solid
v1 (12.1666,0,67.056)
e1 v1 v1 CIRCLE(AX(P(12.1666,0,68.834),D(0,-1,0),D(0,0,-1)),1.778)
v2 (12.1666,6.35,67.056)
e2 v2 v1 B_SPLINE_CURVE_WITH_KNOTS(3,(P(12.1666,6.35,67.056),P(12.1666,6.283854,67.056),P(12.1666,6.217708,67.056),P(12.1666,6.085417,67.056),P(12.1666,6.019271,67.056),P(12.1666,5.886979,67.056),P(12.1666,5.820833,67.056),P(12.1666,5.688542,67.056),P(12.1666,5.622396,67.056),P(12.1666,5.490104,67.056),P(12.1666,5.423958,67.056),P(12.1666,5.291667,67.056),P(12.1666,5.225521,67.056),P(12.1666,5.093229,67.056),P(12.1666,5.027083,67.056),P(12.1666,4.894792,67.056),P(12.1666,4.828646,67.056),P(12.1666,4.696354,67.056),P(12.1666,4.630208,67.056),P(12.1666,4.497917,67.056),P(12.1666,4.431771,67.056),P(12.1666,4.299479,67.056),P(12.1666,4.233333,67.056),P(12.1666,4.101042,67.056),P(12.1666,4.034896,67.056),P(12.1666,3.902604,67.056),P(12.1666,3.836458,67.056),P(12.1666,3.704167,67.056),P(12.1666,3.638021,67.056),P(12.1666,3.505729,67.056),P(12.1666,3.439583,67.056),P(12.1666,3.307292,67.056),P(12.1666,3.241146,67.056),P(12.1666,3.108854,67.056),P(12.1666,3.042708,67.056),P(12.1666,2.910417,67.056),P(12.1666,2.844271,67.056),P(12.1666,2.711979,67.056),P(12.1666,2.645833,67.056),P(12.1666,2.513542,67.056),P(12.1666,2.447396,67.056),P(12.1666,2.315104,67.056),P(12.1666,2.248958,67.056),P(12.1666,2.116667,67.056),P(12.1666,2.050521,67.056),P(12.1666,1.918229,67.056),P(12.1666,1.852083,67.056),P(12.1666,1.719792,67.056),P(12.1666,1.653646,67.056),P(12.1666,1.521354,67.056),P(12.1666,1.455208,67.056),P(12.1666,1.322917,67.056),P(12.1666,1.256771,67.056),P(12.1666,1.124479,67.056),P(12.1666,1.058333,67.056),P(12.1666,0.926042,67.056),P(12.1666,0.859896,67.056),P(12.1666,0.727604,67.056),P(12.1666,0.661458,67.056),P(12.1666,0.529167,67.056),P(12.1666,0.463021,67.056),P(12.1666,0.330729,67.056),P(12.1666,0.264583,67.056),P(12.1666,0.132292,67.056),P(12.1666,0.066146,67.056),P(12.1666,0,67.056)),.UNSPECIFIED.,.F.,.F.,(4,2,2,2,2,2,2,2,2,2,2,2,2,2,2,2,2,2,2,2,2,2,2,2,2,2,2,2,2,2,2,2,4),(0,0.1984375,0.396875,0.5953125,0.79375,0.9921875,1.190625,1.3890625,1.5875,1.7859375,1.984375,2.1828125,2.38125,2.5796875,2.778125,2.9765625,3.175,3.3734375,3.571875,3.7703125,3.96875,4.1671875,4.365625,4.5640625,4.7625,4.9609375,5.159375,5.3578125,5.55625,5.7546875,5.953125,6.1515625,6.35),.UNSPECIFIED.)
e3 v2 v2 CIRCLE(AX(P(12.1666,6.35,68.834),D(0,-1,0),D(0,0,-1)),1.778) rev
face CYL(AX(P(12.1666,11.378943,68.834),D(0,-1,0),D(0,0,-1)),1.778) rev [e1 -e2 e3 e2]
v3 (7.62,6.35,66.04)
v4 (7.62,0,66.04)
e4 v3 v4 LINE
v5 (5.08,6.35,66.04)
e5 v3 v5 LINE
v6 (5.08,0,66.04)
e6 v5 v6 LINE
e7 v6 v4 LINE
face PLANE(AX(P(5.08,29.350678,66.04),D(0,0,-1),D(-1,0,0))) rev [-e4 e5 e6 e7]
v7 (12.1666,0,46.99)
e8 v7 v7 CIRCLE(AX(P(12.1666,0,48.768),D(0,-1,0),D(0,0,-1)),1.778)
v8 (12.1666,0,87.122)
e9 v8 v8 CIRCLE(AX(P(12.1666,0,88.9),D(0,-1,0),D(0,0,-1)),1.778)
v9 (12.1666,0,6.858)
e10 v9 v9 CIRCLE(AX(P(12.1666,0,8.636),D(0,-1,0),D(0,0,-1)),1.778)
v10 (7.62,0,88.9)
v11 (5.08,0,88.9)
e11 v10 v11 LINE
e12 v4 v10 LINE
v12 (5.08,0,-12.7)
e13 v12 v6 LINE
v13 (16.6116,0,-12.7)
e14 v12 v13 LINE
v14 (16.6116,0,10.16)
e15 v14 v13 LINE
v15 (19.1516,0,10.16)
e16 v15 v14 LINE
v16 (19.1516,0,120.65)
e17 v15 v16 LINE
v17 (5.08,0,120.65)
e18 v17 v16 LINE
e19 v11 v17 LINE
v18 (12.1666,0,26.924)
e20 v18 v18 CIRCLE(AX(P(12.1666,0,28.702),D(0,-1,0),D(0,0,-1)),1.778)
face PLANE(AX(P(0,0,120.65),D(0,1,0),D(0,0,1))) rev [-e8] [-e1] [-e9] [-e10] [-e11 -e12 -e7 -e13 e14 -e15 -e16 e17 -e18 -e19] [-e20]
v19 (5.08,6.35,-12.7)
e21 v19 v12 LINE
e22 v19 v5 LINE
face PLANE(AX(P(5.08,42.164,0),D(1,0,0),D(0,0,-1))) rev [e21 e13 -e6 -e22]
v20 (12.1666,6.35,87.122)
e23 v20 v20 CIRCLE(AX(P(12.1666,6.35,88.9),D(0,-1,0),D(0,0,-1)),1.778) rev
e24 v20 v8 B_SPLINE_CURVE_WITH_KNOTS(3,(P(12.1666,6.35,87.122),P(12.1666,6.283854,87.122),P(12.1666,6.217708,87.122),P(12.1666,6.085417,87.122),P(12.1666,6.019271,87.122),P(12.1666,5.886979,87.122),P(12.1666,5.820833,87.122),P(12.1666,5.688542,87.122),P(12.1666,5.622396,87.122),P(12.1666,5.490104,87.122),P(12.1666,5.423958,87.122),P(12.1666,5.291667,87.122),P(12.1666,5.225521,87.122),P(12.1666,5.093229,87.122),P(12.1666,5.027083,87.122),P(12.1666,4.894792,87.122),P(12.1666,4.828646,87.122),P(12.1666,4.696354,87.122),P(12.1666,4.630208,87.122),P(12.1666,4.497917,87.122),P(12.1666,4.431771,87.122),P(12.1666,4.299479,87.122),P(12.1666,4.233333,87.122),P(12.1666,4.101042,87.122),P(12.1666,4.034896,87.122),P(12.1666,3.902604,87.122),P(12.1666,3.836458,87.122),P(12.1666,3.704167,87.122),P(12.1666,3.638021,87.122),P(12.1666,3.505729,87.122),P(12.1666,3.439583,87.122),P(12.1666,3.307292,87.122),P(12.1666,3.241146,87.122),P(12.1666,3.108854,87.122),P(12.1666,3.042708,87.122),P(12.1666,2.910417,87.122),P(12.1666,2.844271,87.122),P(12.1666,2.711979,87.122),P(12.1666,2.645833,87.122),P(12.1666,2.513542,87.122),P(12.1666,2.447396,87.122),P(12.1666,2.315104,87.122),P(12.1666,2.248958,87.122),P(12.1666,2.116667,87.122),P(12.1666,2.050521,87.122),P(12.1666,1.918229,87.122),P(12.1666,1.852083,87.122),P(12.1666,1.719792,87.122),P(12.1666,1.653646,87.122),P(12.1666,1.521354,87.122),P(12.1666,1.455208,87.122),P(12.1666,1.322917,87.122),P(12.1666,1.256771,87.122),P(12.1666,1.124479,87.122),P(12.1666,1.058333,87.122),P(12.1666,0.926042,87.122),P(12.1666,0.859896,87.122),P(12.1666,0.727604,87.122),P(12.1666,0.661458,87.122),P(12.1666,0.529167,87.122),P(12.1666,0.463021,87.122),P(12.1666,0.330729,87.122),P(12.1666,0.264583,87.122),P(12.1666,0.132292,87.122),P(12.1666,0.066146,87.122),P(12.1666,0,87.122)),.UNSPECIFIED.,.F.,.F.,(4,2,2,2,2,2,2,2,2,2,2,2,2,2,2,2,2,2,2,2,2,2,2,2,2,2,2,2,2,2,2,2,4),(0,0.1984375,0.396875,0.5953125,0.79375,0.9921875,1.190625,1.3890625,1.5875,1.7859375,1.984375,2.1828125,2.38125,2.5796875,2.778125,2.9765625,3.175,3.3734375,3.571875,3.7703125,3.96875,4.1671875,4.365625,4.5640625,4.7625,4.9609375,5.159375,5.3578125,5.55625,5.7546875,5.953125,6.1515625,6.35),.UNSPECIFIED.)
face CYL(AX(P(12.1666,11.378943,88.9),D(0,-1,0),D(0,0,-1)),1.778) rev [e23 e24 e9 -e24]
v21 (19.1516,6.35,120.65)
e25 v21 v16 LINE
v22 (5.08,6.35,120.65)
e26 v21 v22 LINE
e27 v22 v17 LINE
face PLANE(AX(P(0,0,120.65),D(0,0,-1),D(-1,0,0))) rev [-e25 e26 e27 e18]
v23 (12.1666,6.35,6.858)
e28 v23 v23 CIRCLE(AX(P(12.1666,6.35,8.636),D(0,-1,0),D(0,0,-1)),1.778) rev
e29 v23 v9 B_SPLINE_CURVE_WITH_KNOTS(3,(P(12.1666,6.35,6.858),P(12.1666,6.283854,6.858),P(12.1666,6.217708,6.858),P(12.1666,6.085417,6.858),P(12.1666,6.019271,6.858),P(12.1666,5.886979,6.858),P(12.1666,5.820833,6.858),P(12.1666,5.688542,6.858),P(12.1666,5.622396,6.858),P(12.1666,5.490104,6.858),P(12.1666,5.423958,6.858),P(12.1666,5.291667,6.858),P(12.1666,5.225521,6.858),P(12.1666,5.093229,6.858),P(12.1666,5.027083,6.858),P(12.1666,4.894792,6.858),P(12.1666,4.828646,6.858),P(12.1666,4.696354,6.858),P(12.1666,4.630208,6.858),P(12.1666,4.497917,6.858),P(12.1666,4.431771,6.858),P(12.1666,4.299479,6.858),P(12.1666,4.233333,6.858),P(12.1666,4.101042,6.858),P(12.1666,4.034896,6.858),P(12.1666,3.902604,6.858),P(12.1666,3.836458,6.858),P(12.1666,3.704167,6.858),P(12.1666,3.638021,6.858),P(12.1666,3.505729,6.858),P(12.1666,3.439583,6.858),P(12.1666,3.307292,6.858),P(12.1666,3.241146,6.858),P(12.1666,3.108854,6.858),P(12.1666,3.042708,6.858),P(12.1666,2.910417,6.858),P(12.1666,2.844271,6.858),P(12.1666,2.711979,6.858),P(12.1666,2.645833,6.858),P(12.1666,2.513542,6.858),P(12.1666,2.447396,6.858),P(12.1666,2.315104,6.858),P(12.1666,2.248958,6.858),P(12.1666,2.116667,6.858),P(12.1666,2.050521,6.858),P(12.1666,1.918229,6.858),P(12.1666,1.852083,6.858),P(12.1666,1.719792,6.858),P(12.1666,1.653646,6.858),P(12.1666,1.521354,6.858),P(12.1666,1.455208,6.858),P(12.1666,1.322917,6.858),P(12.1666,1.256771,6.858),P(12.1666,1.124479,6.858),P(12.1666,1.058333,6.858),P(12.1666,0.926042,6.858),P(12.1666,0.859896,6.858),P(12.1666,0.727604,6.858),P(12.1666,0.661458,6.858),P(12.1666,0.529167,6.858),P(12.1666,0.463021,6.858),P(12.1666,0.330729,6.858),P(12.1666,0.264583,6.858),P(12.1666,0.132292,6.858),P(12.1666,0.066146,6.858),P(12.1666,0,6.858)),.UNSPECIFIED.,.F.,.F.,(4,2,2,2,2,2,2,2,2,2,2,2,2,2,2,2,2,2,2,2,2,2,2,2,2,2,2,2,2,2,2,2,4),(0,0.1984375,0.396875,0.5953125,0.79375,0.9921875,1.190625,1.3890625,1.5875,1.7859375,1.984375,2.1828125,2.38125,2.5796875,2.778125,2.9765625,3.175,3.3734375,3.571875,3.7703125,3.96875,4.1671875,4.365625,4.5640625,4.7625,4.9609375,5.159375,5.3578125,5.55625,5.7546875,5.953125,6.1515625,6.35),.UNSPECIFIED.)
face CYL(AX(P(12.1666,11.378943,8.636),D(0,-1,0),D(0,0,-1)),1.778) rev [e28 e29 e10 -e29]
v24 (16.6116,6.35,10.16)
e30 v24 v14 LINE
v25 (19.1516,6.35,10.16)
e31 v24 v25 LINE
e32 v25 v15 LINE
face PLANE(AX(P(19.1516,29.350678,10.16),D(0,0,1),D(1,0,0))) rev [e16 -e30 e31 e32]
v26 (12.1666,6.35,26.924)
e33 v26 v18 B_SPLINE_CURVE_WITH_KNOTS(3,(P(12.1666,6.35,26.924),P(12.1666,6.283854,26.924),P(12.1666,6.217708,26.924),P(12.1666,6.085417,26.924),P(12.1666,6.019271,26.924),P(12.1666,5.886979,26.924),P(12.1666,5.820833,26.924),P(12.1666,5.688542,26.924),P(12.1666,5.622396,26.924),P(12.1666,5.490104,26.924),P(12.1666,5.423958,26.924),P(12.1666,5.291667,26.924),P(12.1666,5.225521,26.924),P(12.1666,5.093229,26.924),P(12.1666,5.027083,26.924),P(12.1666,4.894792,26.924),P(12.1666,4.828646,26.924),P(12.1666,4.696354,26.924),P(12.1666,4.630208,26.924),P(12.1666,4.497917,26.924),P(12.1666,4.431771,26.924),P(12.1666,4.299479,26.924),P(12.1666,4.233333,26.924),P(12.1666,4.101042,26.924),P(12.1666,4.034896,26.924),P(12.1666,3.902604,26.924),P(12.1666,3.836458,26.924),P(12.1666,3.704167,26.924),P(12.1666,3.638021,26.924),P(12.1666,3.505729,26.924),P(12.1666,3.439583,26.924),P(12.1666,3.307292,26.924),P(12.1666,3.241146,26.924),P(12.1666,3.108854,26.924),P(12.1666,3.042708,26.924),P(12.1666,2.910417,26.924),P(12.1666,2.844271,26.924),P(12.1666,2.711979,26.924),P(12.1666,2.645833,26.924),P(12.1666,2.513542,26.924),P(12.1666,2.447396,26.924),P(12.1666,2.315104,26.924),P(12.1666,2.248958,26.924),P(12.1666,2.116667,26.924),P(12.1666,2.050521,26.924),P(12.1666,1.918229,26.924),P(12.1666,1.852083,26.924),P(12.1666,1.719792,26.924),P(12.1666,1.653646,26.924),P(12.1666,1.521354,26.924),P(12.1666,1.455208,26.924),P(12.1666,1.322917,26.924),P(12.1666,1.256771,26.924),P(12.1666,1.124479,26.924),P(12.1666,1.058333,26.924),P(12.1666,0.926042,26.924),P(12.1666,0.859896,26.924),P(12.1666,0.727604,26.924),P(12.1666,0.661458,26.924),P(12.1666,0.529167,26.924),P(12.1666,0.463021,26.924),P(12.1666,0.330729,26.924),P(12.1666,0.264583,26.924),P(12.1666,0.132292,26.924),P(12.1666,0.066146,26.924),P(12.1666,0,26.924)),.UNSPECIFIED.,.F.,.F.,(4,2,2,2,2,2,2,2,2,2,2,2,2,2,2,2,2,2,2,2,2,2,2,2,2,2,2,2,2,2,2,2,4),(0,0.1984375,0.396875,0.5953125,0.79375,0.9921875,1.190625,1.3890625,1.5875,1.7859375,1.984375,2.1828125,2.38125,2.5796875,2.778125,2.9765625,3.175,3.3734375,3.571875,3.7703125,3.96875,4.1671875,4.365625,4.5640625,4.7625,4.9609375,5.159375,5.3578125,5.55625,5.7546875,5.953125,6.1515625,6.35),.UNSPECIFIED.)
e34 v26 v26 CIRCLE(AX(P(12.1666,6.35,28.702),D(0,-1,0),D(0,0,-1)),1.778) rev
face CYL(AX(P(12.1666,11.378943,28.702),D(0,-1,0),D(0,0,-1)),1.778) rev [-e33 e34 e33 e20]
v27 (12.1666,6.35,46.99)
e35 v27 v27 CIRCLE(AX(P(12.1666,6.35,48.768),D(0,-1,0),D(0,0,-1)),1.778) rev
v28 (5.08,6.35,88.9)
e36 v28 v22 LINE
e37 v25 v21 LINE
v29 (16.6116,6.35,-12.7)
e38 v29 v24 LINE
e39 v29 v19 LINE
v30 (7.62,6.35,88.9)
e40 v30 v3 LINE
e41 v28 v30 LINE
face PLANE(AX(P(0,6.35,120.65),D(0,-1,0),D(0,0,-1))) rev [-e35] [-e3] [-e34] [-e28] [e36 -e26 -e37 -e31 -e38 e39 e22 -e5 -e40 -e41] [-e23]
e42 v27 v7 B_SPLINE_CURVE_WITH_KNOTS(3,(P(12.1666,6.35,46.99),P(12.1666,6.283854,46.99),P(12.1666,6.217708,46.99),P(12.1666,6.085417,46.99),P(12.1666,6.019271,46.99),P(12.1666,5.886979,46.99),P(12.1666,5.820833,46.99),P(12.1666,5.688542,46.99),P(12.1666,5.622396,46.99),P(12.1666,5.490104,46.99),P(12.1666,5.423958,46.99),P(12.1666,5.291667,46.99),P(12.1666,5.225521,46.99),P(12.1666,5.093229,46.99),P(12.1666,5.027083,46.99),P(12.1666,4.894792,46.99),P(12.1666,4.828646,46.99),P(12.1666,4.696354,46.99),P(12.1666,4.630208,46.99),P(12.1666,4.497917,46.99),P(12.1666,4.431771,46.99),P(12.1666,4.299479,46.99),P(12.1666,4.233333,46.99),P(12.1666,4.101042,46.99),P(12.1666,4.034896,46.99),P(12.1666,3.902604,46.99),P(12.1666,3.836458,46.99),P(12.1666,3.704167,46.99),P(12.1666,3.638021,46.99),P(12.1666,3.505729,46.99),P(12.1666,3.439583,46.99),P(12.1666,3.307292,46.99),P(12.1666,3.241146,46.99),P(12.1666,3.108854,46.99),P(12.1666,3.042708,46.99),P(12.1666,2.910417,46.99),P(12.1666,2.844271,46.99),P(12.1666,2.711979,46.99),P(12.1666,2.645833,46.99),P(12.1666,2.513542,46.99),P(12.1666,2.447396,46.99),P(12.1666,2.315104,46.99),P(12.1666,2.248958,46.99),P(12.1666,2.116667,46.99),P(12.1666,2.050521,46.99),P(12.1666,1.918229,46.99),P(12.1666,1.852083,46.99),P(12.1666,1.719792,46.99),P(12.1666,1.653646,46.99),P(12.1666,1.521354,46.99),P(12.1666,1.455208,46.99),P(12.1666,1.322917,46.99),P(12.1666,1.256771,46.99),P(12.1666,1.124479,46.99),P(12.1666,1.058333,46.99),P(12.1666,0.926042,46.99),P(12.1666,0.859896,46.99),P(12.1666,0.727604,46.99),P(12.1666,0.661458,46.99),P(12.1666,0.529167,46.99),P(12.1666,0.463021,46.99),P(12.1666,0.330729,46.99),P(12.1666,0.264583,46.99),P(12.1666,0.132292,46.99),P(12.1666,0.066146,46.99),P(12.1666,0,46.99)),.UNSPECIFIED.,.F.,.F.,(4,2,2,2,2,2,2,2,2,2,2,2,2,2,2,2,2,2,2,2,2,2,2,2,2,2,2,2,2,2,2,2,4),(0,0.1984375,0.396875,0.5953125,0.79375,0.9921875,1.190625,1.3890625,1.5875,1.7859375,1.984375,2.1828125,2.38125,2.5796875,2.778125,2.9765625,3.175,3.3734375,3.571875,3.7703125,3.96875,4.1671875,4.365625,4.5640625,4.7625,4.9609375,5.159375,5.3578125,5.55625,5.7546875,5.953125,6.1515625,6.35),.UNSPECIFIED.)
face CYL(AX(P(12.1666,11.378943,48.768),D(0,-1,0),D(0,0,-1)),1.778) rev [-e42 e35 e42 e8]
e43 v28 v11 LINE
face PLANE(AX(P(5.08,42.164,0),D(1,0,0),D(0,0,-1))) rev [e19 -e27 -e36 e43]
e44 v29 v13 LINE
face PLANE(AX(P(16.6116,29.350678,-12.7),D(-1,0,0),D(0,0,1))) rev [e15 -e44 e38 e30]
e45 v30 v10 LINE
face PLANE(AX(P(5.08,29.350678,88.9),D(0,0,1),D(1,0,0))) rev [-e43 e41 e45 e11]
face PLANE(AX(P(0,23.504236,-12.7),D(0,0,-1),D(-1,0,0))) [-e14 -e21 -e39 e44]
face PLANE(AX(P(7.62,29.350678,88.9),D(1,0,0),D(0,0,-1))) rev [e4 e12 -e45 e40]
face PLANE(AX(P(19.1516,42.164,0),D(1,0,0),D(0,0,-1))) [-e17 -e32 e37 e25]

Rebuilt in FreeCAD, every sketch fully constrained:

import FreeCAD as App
import Part
import Sketcher
from FreeCAD import Vector
Q = App.Units.Quantity


def add_polygon(sketch, points):
    """Adds a closed chain of lines whose ends are joined by coincident constraints."""
    first, n = sketch.GeometryCount, len(points)
    for a, b in zip(points, points[1:] + points[:1]):
        sketch.addGeometry(Part.LineSegment(App.Vector(*a, 0), App.Vector(*b, 0)), False)
    for i in range(n):
        sketch.addConstraint(Sketcher.Constraint("Coincident", first + i, 2, first + (i + 1) % n, 1))

doc = App.newDocument("Part")
body = doc.addObject("PartDesign::Body", "Body")

sketch1 = body.newObject("Sketcher::SketchObject", "Sketch")
sketch1.AttachmentSupport = (doc.getObject("XY_Plane"), [""])
sketch1.MapMode = "FlatFace"
add_polygon(sketch1, [(0, 6), (0, 0), (70, 0), (70, 6)])
sketch1.addConstraint([
    Sketcher.Constraint("Vertical", 0),
    Sketcher.Constraint("Horizontal", 1),
    Sketcher.Constraint("Vertical", 2),
    Sketcher.Constraint("Horizontal", 3),
    Sketcher.Constraint("Coincident", 0, 2, -1, 1),
    Sketcher.Constraint("DistanceX", 1, 1, 1, 2, Q("2.75 in")),
    Sketcher.Constraint("DistanceY", 0, 2, 0, 1, Q("0.25 in")),
])
pad1 = body.newObject("PartDesign::Pad", "Pad")
pad1.Profile = sketch1
pad1.Length = Q("4.75 in")

sketch2 = body.newObject("Sketcher::SketchObject", "Sketch001")
sketch2.AttachmentSupport = (doc.getObject("XZ_Plane"), [""])
sketch2.MapMode = "FlatFace"
sketch2.AttachmentOffset = App.Placement(Vector(0, 0, -0.25 * 25.4), App.Rotation())
add_polygon(sketch2, [(36, 0), (36, 38), (70, 56), (70, 0)])
sketch2.addConstraint([
    Sketcher.Constraint("Vertical", 0),
    Sketcher.Constraint("Vertical", 2),
    Sketcher.Constraint("Horizontal", 3),
    Sketcher.Constraint("PointOnObject", 2, 2, -1),
    Sketcher.Constraint("DistanceX", -1, 1, 1, 2, Q("2.75 in")),
    Sketcher.Constraint("DistanceY", 0, 1, 0, 2, 37.802999),
    Sketcher.Constraint("DistanceX", 3, 2, 3, 1, 33.92625),
    Sketcher.Constraint("DistanceY", 2, 2, 2, 1, 55.962277),
])
pocket1 = body.newObject("PartDesign::Pocket", "Pocket")
pocket1.Profile = sketch2
pocket1.Type = "ThroughAll"
pocket1.Reversed = True

sketch3 = body.newObject("Sketcher::SketchObject", "Sketch002")
sketch3.AttachmentSupport = (doc.getObject("XZ_Plane"), [""])
sketch3.MapMode = "FlatFace"
add_polygon(sketch3, [(19, 121), (19, 0), (36, 0), (36, 38), (70, 56), (70, 121)])
add_polygon(sketch3, [(0, 121), (0, 0), (5, 0), (5, 121)])
sketch3.addConstraint([
    Sketcher.Constraint("Vertical", 0),
    Sketcher.Constraint("Horizontal", 1),
    Sketcher.Constraint("Vertical", 2),
    Sketcher.Constraint("Vertical", 4),
    Sketcher.Constraint("Horizontal", 5),
    Sketcher.Constraint("Vertical", 6),
    Sketcher.Constraint("Horizontal", 7),
    Sketcher.Constraint("Vertical", 8),
    Sketcher.Constraint("Horizontal", 9),
    Sketcher.Constraint("Coincident", 6, 2, -1, 1),
    Sketcher.Constraint("PointOnObject", 0, 2, -1),
    Sketcher.Constraint("Horizontal", 5, 2, 8, 2),
    Sketcher.Constraint("DistanceX", 7, 1, 7, 2, Q("0.2 in")),
    Sketcher.Constraint("DistanceY", 0, 2, 0, 1, Q("4.75 in")),
    Sketcher.Constraint("DistanceX", 5, 2, 5, 1, Q("1.996 in")),
    Sketcher.Constraint("DistanceX", -1, 1, 3, 2, Q("2.75 in")),
    Sketcher.Constraint("DistanceY", 2, 1, 2, 2, 37.802999),
    Sketcher.Constraint("DistanceX", 1, 1, 1, 2, 16.77215),
    Sketcher.Constraint("DistanceY", 4, 1, 4, 2, 64.687723),
])
pocket2 = body.newObject("PartDesign::Pocket", "Pocket001")
pocket2.Profile = sketch3
pocket2.Length = Q("1.66 in")

sketch4 = body.newObject("Sketcher::SketchObject", "Sketch003")
sketch4.AttachmentSupport = (doc.getObject("XZ_Plane"), [""])
sketch4.MapMode = "FlatFace"
add_polygon(sketch4, [(5.1, 88.9), (5.1, 66), (7.6, 66), (7.6, 88.9)])
add_polygon(sketch4, [(16.6, 10.2), (16.6, -12.7), (19.2, -12.7), (19.2, 10.2)])
sketch4.addConstraint([
    Sketcher.Constraint("Vertical", 0),
    Sketcher.Constraint("Horizontal", 1),
    Sketcher.Constraint("Vertical", 2),
    Sketcher.Constraint("Horizontal", 3),
    Sketcher.Constraint("Vertical", 4),
    Sketcher.Constraint("Horizontal", 5),
    Sketcher.Constraint("Vertical", 6),
    Sketcher.Constraint("Horizontal", 7),
    Sketcher.Constraint("Equal", 3, 5),
    Sketcher.Constraint("Equal", 2, 4),
    Sketcher.Constraint("DistanceX", 1, 1, 1, 2, Q("0.1 in")),
    Sketcher.Constraint("DistanceY", 0, 2, 0, 1, Q("0.9 in")),
    Sketcher.Constraint("DistanceY", 4, 2, 2, 2, Q("4 in")),
    Sketcher.Constraint("DistanceX", -1, 1, 0, 2, Q("0.2 in")),
    Sketcher.Constraint("DistanceY", -1, 1, 0, 2, Q("2.6 in")),
    Sketcher.Constraint("DistanceX", -1, 1, 4, 2, Q("0.654 in")),
])
pocket3 = body.newObject("PartDesign::Pocket", "Pocket002")
pocket3.Profile = sketch4
pocket3.Length = Q("0.25 in")

sketch5 = body.newObject("Sketcher::SketchObject", "Sketch004")
sketch5.AttachmentSupport = (doc.getObject("XZ_Plane"), [""])
sketch5.MapMode = "FlatFace"
add_polygon(sketch5, [(5, 0), (5, -13), (17, -13), (17, 0)])
sketch5.addConstraint([
    Sketcher.Constraint("Vertical", 0),
    Sketcher.Constraint("Horizontal", 1),
    Sketcher.Constraint("Vertical", 2),
    Sketcher.Constraint("Horizontal", 3),
    Sketcher.Constraint("PointOnObject", 2, 2, -1),
    Sketcher.Constraint("DistanceY", 0, 2, 0, 1, Q("0.5 in")),
    Sketcher.Constraint("DistanceX", -1, 1, 0, 2, Q("0.2 in")),
    Sketcher.Constraint("DistanceX", 1, 1, 1, 2, Q("0.454 in")),
])
pad2 = body.newObject("PartDesign::Pad", "Pad001")
pad2.Profile = sketch5
pad2.Length = Q("0.25 in")
pad2.Reversed = True

sketch6 = body.newObject("Sketcher::SketchObject", "Sketch005")
sketch6.AttachmentSupport = (doc.getObject("XZ_Plane"), [""])
sketch6.MapMode = "FlatFace"
sketch6.addGeometry([
    Part.Circle(Vector(12.2, 88.9, 0), Vector(0, 0, 1), 1.8),
    Part.Circle(Vector(12.2, 68.8, 0), Vector(0, 0, 1), 1.8),
    Part.Circle(Vector(0, 0, 0), Vector(0, 0, 1), 1.8),
    Part.Circle(Vector(12.2, 48.8, 0), Vector(0, 0, 1), 1.8),
    Part.Circle(Vector(12.2, 28.7, 0), Vector(0, 0, 1), 1.8),
    Part.Circle(Vector(12.2, 8.6, 0), Vector(0, 0, 1), 1.8),
], False)
sketch6.addConstraint([
    Sketcher.Constraint("Coincident", 2, 3, -1, 1),
    Sketcher.Constraint("Equal", 0, 1),
    Sketcher.Constraint("Equal", 1, 2),
    Sketcher.Constraint("Equal", 2, 3),
    Sketcher.Constraint("Equal", 3, 4),
    Sketcher.Constraint("Equal", 4, 5),
    Sketcher.Constraint("Vertical", 0, 3, 1, 3),
    Sketcher.Constraint("Vertical", 1, 3, 3, 3),
    Sketcher.Constraint("Vertical", 3, 3, 4, 3),
    Sketcher.Constraint("Vertical", 4, 3, 5, 3),
    Sketcher.Constraint("Diameter", 0, Q("0.14 in")),
    Sketcher.Constraint("DistanceY", -1, 1, 0, 3, Q("3.5 in")),
    Sketcher.Constraint("DistanceY", -1, 1, 1, 3, Q("2.71 in")),
    Sketcher.Constraint("DistanceY", -1, 1, 3, 3, Q("1.92 in")),
    Sketcher.Constraint("DistanceY", -1, 1, 4, 3, Q("1.13 in")),
    Sketcher.Constraint("DistanceY", -1, 1, 5, 3, Q("0.34 in")),
    Sketcher.Constraint("DistanceX", -1, 1, 0, 3, Q("0.479 in")),
])
pocket4 = body.newObject("PartDesign::Pocket", "Pocket003")
pocket4.Profile = sketch6
pocket4.Length = Q("0.25 in")

doc.recompute()
